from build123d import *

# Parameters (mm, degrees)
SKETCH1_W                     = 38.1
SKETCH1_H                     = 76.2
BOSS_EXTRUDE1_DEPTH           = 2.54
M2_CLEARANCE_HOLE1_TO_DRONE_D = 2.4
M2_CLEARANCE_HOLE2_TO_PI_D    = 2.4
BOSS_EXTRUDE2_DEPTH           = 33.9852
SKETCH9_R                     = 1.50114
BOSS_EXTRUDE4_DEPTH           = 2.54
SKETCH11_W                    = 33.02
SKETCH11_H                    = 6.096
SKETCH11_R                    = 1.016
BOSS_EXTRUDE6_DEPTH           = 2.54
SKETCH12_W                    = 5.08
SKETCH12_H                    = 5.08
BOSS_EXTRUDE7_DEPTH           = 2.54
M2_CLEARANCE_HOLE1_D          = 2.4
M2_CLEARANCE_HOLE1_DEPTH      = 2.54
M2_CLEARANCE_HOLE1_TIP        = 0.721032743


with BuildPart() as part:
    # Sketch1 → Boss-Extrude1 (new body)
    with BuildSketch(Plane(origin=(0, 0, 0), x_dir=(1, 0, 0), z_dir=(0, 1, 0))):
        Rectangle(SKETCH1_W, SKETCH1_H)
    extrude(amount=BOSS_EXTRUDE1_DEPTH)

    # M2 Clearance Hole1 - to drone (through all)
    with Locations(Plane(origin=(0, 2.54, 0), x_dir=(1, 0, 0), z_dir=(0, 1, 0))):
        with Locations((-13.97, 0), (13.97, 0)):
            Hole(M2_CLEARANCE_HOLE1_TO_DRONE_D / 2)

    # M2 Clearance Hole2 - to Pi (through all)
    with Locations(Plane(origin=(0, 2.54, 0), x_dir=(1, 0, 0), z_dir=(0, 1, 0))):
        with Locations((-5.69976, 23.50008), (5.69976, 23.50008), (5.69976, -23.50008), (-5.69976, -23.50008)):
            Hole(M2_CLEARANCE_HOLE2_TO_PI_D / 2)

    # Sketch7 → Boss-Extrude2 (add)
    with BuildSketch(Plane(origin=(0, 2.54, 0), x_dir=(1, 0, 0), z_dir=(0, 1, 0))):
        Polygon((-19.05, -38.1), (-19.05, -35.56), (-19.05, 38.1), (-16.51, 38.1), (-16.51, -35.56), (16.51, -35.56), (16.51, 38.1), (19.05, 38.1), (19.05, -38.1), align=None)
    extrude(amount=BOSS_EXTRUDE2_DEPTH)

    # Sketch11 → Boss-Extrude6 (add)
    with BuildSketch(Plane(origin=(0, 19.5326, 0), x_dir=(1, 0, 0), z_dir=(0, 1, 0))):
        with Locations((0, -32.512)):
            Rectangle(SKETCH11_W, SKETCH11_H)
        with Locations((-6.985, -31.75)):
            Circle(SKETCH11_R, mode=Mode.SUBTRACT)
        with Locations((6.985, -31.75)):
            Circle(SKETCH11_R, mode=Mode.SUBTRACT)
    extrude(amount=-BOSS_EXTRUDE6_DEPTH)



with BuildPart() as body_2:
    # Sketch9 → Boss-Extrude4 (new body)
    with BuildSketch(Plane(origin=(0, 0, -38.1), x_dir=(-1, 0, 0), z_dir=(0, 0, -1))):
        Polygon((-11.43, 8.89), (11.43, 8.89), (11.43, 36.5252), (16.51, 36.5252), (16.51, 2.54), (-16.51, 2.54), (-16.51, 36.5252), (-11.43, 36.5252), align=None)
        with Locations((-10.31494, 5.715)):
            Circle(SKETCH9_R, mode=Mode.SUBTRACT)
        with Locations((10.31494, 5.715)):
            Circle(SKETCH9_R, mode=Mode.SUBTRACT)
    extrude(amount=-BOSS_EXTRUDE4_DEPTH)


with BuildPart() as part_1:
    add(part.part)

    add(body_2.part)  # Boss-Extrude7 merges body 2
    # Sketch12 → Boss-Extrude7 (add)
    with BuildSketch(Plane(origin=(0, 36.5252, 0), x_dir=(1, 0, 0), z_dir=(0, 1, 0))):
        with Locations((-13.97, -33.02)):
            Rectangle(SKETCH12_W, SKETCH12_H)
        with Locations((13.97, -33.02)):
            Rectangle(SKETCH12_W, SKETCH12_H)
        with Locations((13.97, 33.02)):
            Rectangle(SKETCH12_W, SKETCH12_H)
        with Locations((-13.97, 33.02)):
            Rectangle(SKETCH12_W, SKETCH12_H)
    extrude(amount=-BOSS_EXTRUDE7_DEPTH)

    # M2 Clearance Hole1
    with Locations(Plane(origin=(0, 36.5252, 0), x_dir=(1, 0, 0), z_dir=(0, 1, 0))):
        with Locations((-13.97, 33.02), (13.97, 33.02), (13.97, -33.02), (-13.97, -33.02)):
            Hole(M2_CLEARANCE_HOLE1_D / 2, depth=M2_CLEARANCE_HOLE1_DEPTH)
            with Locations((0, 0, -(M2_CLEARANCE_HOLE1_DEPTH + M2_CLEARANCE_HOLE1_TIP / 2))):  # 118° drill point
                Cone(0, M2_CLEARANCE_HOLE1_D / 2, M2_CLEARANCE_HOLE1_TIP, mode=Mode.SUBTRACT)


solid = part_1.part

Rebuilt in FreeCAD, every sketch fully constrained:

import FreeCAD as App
import Part
import Sketcher
Q = App.Units.Quantity

doc = App.newDocument("Part")
body = doc.addObject("PartDesign::Body", "Body")

# Sketch on XZ plane
sketch1 = body.newObject("Sketcher::SketchObject", "Sketch")
sketch1.AttachmentSupport = (doc.getObject("XZ_Plane"), [""])
sketch1.MapMode = "FlatFace"
sketch1.addGeometry([
    Part.LineSegment(App.Vector(-19.05, -38.1, 0), App.Vector(-19.05, 38.1, 0)),
    Part.LineSegment(App.Vector(-19.05, 38.1, 0), App.Vector(19.05, 38.1, 0)),
    Part.LineSegment(App.Vector(19.05, 38.1, 0), App.Vector(19.05, -38.1, 0)),
    Part.LineSegment(App.Vector(19.05, -38.1, 0), App.Vector(-19.05, -38.1, 0)),
], False)
sketch1.addConstraint([
    Sketcher.Constraint("Coincident", 0, 2, 1, 1),
    Sketcher.Constraint("Coincident", 1, 2, 2, 1),
    Sketcher.Constraint("Coincident", 2, 2, 3, 1),
    Sketcher.Constraint("Coincident", 3, 2, 0, 1),
    Sketcher.Constraint("Vertical", 0),
    Sketcher.Constraint("Horizontal", 1),
    Sketcher.Constraint("Vertical", 2),
    Sketcher.Constraint("Horizontal", 3),
    Sketcher.Constraint("Symmetric", 0, 2, 2, 2, -1, 1),
    Sketcher.Constraint("DistanceY", 0, 1, 0, 2, Q("3 in")),
    Sketcher.Constraint("DistanceX", 1, 1, 1, 2, Q("1.5 in")),
])
pad1 = body.newObject("PartDesign::Pad", "Pad")
pad1.Profile = sketch1
pad1.Length = Q("0.1 in")
pad1.Reversed = True

# Sketch on XZ plane
sketch2 = body.newObject("Sketcher::SketchObject", "Sketch001")
sketch2.AttachmentSupport = (doc.getObject("XZ_Plane"), [""])
sketch2.MapMode = "FlatFace"
sketch2.AttachmentOffset = App.Placement(App.Vector(0, 0, -0.1 * 25.4), App.Rotation())
sketch2.addGeometry([
    Part.Circle(App.Vector(-13.97, 0, 0), App.Vector(0, 0, 1), 1.2),
    Part.Circle(App.Vector(13.97, 0, 0), App.Vector(0, 0, 1), 1.2),
], False)
sketch2.addConstraint([
    Sketcher.Constraint("Equal", 0, 1),
    Sketcher.Constraint("Symmetric", 0, 3, 1, 3, -1, 1),
    Sketcher.Constraint("PointOnObject", 0, 3, -1),
    Sketcher.Constraint("DistanceX", 0, 3, 1, 3, Q("1.1 in")),
    Sketcher.Constraint("Diameter", 0, Q("2.4 mm")),
])
doc.recompute()
hole = body.newObject("PartDesign::Hole", "Hole")
hole.Profile = sketch2
hole.ThreadType = "None"
hole.Diameter = 2.4
hole.DepthType = "ThroughAll"
hole.Reversed = True

# Sketch on XZ plane
sketch3 = body.newObject("Sketcher::SketchObject", "Sketch002")
sketch3.AttachmentSupport = (doc.getObject("XZ_Plane"), [""])
sketch3.MapMode = "FlatFace"
sketch3.AttachmentOffset = App.Placement(App.Vector(0, 0, -0.1 * 25.4), App.Rotation())
sketch3.addGeometry([
    Part.Circle(App.Vector(-5.69976, -23.50008, 0), App.Vector(0, 0, 1), 1.2),
    Part.Circle(App.Vector(5.69976, -23.50008, 0), App.Vector(0, 0, 1), 1.2),
    Part.Circle(App.Vector(5.69976, 23.50008, 0), App.Vector(0, 0, 1), 1.2),
    Part.Circle(App.Vector(-5.69976, 23.50008, 0), App.Vector(0, 0, 1), 1.2),
], False)
sketch3.addConstraint([
    Sketcher.Constraint("Equal", 0, 1),
    Sketcher.Constraint("Equal", 1, 2),
    Sketcher.Constraint("Equal", 2, 3),
    Sketcher.Constraint("Symmetric", 0, 3, 2, 3, -1, 1),
    Sketcher.Constraint("Symmetric", 1, 3, 3, 3, -1, 1),
    Sketcher.Constraint("Symmetric", 0, 3, 1, 3, -2),
    Sketcher.Constraint("Diameter", 0, Q("2.4 mm")),
    Sketcher.Constraint("DistanceX", 0, 3, -1, 1, Q("0.2244 in")),
    Sketcher.Constraint("DistanceY", 0, 3, -1, 1, Q("0.9252 in")),
])
doc.recompute()
hole2 = body.newObject("PartDesign::Hole", "Hole001")
hole2.Profile = sketch3
hole2.ThreadType = "None"
hole2.Diameter = 2.4
hole2.DepthType = "ThroughAll"
hole2.Reversed = True

# Sketch on XZ plane
sketch4 = body.newObject("Sketcher::SketchObject", "Sketch003")
sketch4.AttachmentSupport = (doc.getObject("XZ_Plane"), [""])
sketch4.MapMode = "FlatFace"
sketch4.AttachmentOffset = App.Placement(App.Vector(0, 0, -0.1 * 25.4), App.Rotation())
sketch4.addGeometry([
    Part.LineSegment(App.Vector(-19.05, -38.1, 0), App.Vector(-19.05, 38.1, 0)),  # 0
    Part.LineSegment(App.Vector(-19.05, 38.1, 0), App.Vector(19.05, 38.1, 0)),  # 1
    Part.LineSegment(App.Vector(19.05, 38.1, 0), App.Vector(19.05, -38.1, 0)),  # 2
    Part.LineSegment(App.Vector(19.05, -38.1, 0), App.Vector(16.51, -38.1, 0)),  # 3
    Part.LineSegment(App.Vector(16.51, -38.1, 0), App.Vector(16.51, 35.56, 0)),  # 4
    Part.LineSegment(App.Vector(16.51, 35.56, 0), App.Vector(-16.51, 35.56, 0)),  # 5
    Part.LineSegment(App.Vector(-16.51, 35.56, 0), App.Vector(-16.51, -38.1, 0)),  # 6
    Part.LineSegment(App.Vector(-16.51, -38.1, 0), App.Vector(-19.05, -38.1, 0)),  # 7
], False)
sketch4.addConstraint([
    Sketcher.Constraint("Coincident", 0, 2, 1, 1),
    Sketcher.Constraint("Coincident", 1, 2, 2, 1),
    Sketcher.Constraint("Coincident", 2, 2, 3, 1),
    Sketcher.Constraint("Coincident", 3, 2, 4, 1),
    Sketcher.Constraint("Coincident", 4, 2, 5, 1),
    Sketcher.Constraint("Coincident", 5, 2, 6, 1),
    Sketcher.Constraint("Coincident", 6, 2, 7, 1),
    Sketcher.Constraint("Coincident", 7, 2, 0, 1),
    Sketcher.Constraint("Vertical", 0),
    Sketcher.Constraint("Horizontal", 1),
    Sketcher.Constraint("Vertical", 2),
    Sketcher.Constraint("Horizontal", 3),
    Sketcher.Constraint("Vertical", 4),
    Sketcher.Constraint("Horizontal", 5),
    Sketcher.Constraint("Vertical", 6),
    Sketcher.Constraint("Horizontal", 7),
    Sketcher.Constraint("Symmetric", 0, 2, 2, 2, -1, 1),
    Sketcher.Constraint("Symmetric", 3, 2, 6, 2, -2),
    Sketcher.Constraint("DistanceY", 0, 1, 0, 2, Q("3 in")),
    Sketcher.Constraint("DistanceX", 1, 1, 1, 2, Q("1.5 in")),
    Sketcher.Constraint("DistanceX", 3, 2, 3, 1, Q("0.1 in")),
    Sketcher.Constraint("DistanceY", 4, 1, 4, 2, Q("2.9 in")),
])
pad2 = body.newObject("PartDesign::Pad", "Pad001")
pad2.Profile = sketch4
pad2.Length = Q("1.338 in")
pad2.Reversed = True

# Sketch on XZ plane
sketch5 = body.newObject("Sketcher::SketchObject", "Sketch004")
sketch5.AttachmentSupport = (doc.getObject("XZ_Plane"), [""])
sketch5.MapMode = "FlatFace"
sketch5.AttachmentOffset = App.Placement(App.Vector(0, 0, -0.769 * 25.4), App.Rotation())
sketch5.addGeometry([
    Part.LineSegment(App.Vector(-16.51, 29.464, 0), App.Vector(-16.51, 35.56, 0)),  # 0
    Part.LineSegment(App.Vector(-16.51, 35.56, 0), App.Vector(16.51, 35.56, 0)),  # 1
    Part.LineSegment(App.Vector(16.51, 35.56, 0), App.Vector(16.51, 29.464, 0)),  # 2
    Part.LineSegment(App.Vector(16.51, 29.464, 0), App.Vector(-16.51, 29.464, 0)),  # 3
    Part.Circle(App.Vector(-6.985, 31.75, 0), App.Vector(0, 0, 1), 1.016),  # 4
    Part.Circle(App.Vector(6.985, 31.75, 0), App.Vector(0, 0, 1), 1.016),  # 5
], False)
sketch5.addConstraint([
    Sketcher.Constraint("Coincident", 0, 2, 1, 1),
    Sketcher.Constraint("Coincident", 1, 2, 2, 1),
    Sketcher.Constraint("Coincident", 2, 2, 3, 1),
    Sketcher.Constraint("Coincident", 3, 2, 0, 1),
    Sketcher.Constraint("Vertical", 0),
    Sketcher.Constraint("Horizontal", 1),
    Sketcher.Constraint("Vertical", 2),
    Sketcher.Constraint("Horizontal", 3),
    Sketcher.Constraint("Equal", 4, 5),
    Sketcher.Constraint("Symmetric", 4, 3, 5, 3, -2),
    Sketcher.Constraint("Diameter", 4, Q("0.08 in")),
    Sketcher.Constraint("DistanceX", 1, 1, 1, 2, Q("1.3 in")),
    Sketcher.Constraint("DistanceY", 0, 1, 0, 2, Q("0.24 in")),
    Sketcher.Constraint("DistanceY", -1, 1, 0, 2, Q("1.4 in")),
    Sketcher.Constraint("DistanceY", -1, 1, 4, 3, Q("1.25 in")),
    Sketcher.Constraint("DistanceX", 0, 2, -1, 1, Q("0.65 in")),
    Sketcher.Constraint("DistanceX", 4, 3, 5, 3, Q("0.55 in")),
])
pad3 = body.newObject("PartDesign::Pad", "Pad002")
pad3.Profile = sketch5
pad3.Length = Q("0.1 in")
body2 = doc.addObject("PartDesign::Body", "Body001")

# Sketch on XY plane
sketch6 = body2.newObject("Sketcher::SketchObject", "Sketch005")
sketch6.AttachmentSupport = (doc.getObject("XY_Plane001"), [""])
sketch6.MapMode = "FlatFace"
sketch6.AttachmentOffset = App.Placement(App.Vector(0, 0, -1.5 * 25.4), App.Rotation())
sketch6.addGeometry([
    Part.LineSegment(App.Vector(-11.43, 8.89, 0), App.Vector(11.43, 8.89, 0)),  # 0
    Part.LineSegment(App.Vector(11.43, 8.89, 0), App.Vector(11.43, 36.5252, 0)),  # 1
    Part.LineSegment(App.Vector(11.43, 36.5252, 0), App.Vector(16.51, 36.5252, 0)),  # 2
    Part.LineSegment(App.Vector(16.51, 36.5252, 0), App.Vector(16.51, 2.54, 0)),  # 3
    Part.LineSegment(App.Vector(16.51, 2.54, 0), App.Vector(-16.51, 2.54, 0)),  # 4
    Part.LineSegment(App.Vector(-16.51, 2.54, 0), App.Vector(-16.51, 36.5252, 0)),  # 5
    Part.LineSegment(App.Vector(-16.51, 36.5252, 0), App.Vector(-11.43, 36.5252, 0)),  # 6
    Part.LineSegment(App.Vector(-11.43, 36.5252, 0), App.Vector(-11.43, 8.89, 0)),  # 7
    Part.Circle(App.Vector(-10.31494, 5.715, 0), App.Vector(0, 0, 1), 1.50114),  # 8
    Part.Circle(App.Vector(10.31494, 5.715, 0), App.Vector(0, 0, 1), 1.50114),  # 9
], False)
sketch6.addConstraint([
    Sketcher.Constraint("Coincident", 0, 2, 1, 1),
    Sketcher.Constraint("Coincident", 1, 2, 2, 1),
    Sketcher.Constraint("Coincident", 2, 2, 3, 1),
    Sketcher.Constraint("Coincident", 3, 2, 4, 1),
    Sketcher.Constraint("Coincident", 4, 2, 5, 1),
    Sketcher.Constraint("Coincident", 5, 2, 6, 1),
    Sketcher.Constraint("Coincident", 6, 2, 7, 1),
    Sketcher.Constraint("Coincident", 7, 2, 0, 1),
    Sketcher.Constraint("Horizontal", 0),
    Sketcher.Constraint("Vertical", 1),
    Sketcher.Constraint("Horizontal", 2),
    Sketcher.Constraint("Vertical", 3),
    Sketcher.Constraint("Horizontal", 4),
    Sketcher.Constraint("Vertical", 5),
    Sketcher.Constraint("Horizontal", 6),
    Sketcher.Constraint("Vertical", 7),
    Sketcher.Constraint("Equal", 8, 9),
    Sketcher.Constraint("Symmetric", 8, 3, 9, 3, -2),
    Sketcher.Constraint("Symmetric", 2, 2, 5, 2, -2),
    Sketcher.Constraint("Equal", 2, 6),
    Sketcher.Constraint("DistanceX", 0, 1, 0, 2, Q("0.9 in")),
    Sketcher.Constraint("DistanceX", 2, 1, 2, 2, Q("0.2 in")),
    Sketcher.Constraint("Diameter", 8, Q("0.1182 in")),
    Sketcher.Constraint("DistanceY", -1, 1, 3, 2, Q("0.1 in")),
    Sketcher.Constraint("DistanceY", 1, 1, 1, 2, Q("1.088 in")),
    Sketcher.Constraint("DistanceY", 3, 2, 3, 1, Q("1.338 in")),
    Sketcher.Constraint("DistanceY", -1, 1, 8, 3, Q("0.225 in")),
    Sketcher.Constraint("DistanceX", 8, 3, -1, 1, Q("0.4061 in")),
])
pad4 = body2.newObject("PartDesign::Pad", "Pad003")
pad4.Profile = sketch6
pad4.Length = Q("0.1 in")
doc.recompute()

boolean = body.newObject("PartDesign::Boolean", "Boolean")
boolean.Type = "Fuse"
boolean.addObjects([body2])

# Sketch on XZ plane
sketch7 = body.newObject("Sketcher::SketchObject", "Sketch006")
sketch7.AttachmentSupport = (doc.getObject("XZ_Plane"), [""])
sketch7.MapMode = "FlatFace"
sketch7.AttachmentOffset = App.Placement(App.Vector(0, 0, -1.438 * 25.4), App.Rotation())
sketch7.addGeometry([
    Part.LineSegment(App.Vector(-16.51, 30.48, 0), App.Vector(-16.51, 35.56, 0)),  # 0
    Part.LineSegment(App.Vector(-16.51, 35.56, 0), App.Vector(-11.43, 35.56, 0)),  # 1
    Part.LineSegment(App.Vector(-11.43, 35.56, 0), App.Vector(-11.43, 30.48, 0)),  # 2
    Part.LineSegment(App.Vector(-11.43, 30.48, 0), App.Vector(-16.51, 30.48, 0)),  # 3
    Part.LineSegment(App.Vector(11.43, 30.48, 0), App.Vector(11.43, 35.56, 0)),  # 4
    Part.LineSegment(App.Vector(11.43, 35.56, 0), App.Vector(16.51, 35.56, 0)),  # 5
    Part.LineSegment(App.Vector(16.51, 35.56, 0), App.Vector(16.51, 30.48, 0)),  # 6
    Part.LineSegment(App.Vector(16.51, 30.48, 0), App.Vector(11.43, 30.48, 0)),  # 7
    Part.LineSegment(App.Vector(11.43, -35.56, 0), App.Vector(11.43, -30.48, 0)),  # 8
    Part.LineSegment(App.Vector(11.43, -30.48, 0), App.Vector(16.51, -30.48, 0)),  # 9
    Part.LineSegment(App.Vector(16.51, -30.48, 0), App.Vector(16.51, -35.56, 0)),  # 10
    Part.LineSegment(App.Vector(16.51, -35.56, 0), App.Vector(11.43, -35.56, 0)),  # 11
    Part.LineSegment(App.Vector(-16.51, -35.56, 0), App.Vector(-16.51, -30.48, 0)),  # 12
    Part.LineSegment(App.Vector(-16.51, -30.48, 0), App.Vector(-11.43, -30.48, 0)),  # 13
    Part.LineSegment(App.Vector(-11.43, -30.48, 0), App.Vector(-11.43, -35.56, 0)),  # 14
    Part.LineSegment(App.Vector(-11.43, -35.56, 0), App.Vector(-16.51, -35.56, 0)),  # 15
], False)
sketch7.addConstraint([
    Sketcher.Constraint("Coincident", 0, 2, 1, 1),
    Sketcher.Constraint("Coincident", 1, 2, 2, 1),
    Sketcher.Constraint("Coincident", 2, 2, 3, 1),
    Sketcher.Constraint("Coincident", 3, 2, 0, 1),
    Sketcher.Constraint("Coincident", 4, 2, 5, 1),
    Sketcher.Constraint("Coincident", 5, 2, 6, 1),
    Sketcher.Constraint("Coincident", 6, 2, 7, 1),
    Sketcher.Constraint("Coincident", 7, 2, 4, 1),
    Sketcher.Constraint("Coincident", 8, 2, 9, 1),
    Sketcher.Constraint("Coincident", 9, 2, 10, 1),
    Sketcher.Constraint("Coincident", 10, 2, 11, 1),
    Sketcher.Constraint("Coincident", 11, 2, 8, 1),
    Sketcher.Constraint("Coincident", 12, 2, 13, 1),
    Sketcher.Constraint("Coincident", 13, 2, 14, 1),
    Sketcher.Constraint("Coincident", 14, 2, 15, 1),
    Sketcher.Constraint("Coincident", 15, 2, 12, 1),
    Sketcher.Constraint("Vertical", 0),
    Sketcher.Constraint("Horizontal", 1),
    Sketcher.Constraint("Vertical", 2),
    Sketcher.Constraint("Horizontal", 3),
    Sketcher.Constraint("Vertical", 4),
    Sketcher.Constraint("Horizontal", 5),
    Sketcher.Constraint("Vertical", 6),
    Sketcher.Constraint("Horizontal", 7),
    Sketcher.Constraint("Vertical", 8),
    Sketcher.Constraint("Horizontal", 9),
    Sketcher.Constraint("Vertical", 10),
    Sketcher.Constraint("Horizontal", 11),
    Sketcher.Constraint("Vertical", 12),
    Sketcher.Constraint("Horizontal", 13),
    Sketcher.Constraint("Vertical", 14),
    Sketcher.Constraint("Horizontal", 15),
    Sketcher.Constraint("Symmetric", 2, 2, 8, 2, -1, 1),
    Sketcher.Constraint("Symmetric", 0, 2, 10, 2, -1, 1),
    Sketcher.Constraint("Symmetric", 6, 2, 12, 2, -1, 1),
    Sketcher.Constraint("Symmetric", 4, 2, 14, 2, -1, 1),
    Sketcher.Constraint("Symmetric", 1, 2, 4, 2, -2),
    Sketcher.Constraint("Symmetric", 3, 2, 6, 2, -2),
    Sketcher.Constraint("Equal", 15, 0),
    Sketcher.Constraint("DistanceX", 1, 1, 1, 2, Q("0.2 in")),
    Sketcher.Constraint("DistanceY", -1, 1, 0, 2, Q("1.4 in")),
    Sketcher.Constraint("DistanceX", 1, 2, 4, 2, Q("0.9 in")),
])
pad5 = body.newObject("PartDesign::Pad", "Pad004")
pad5.Profile = sketch7
pad5.Length = Q("0.1 in")

# Sketch on XZ plane
sketch8 = body.newObject("Sketcher::SketchObject", "Sketch007")
sketch8.AttachmentSupport = (doc.getObject("XZ_Plane"), [""])
sketch8.MapMode = "FlatFace"
sketch8.AttachmentOffset = App.Placement(App.Vector(0, 0, -1.438 * 25.4), App.Rotation())
sketch8.addGeometry([
    Part.Circle(App.Vector(-13.97, -33.02, 0), App.Vector(0, 0, 1), 1.2),
    Part.Circle(App.Vector(13.97, -33.02, 0), App.Vector(0, 0, 1), 1.2),
    Part.Circle(App.Vector(13.97, 33.02, 0), App.Vector(0, 0, 1), 1.2),
    Part.Circle(App.Vector(-13.97, 33.02, 0), App.Vector(0, 0, 1), 1.2),
], False)
sketch8.addConstraint([
    Sketcher.Constraint("Equal", 0, 1),
    Sketcher.Constraint("Equal", 1, 2),
    Sketcher.Constraint("Equal", 2, 3),
    Sketcher.Constraint("Symmetric", 0, 3, 2, 3, -1, 1),
    Sketcher.Constraint("Symmetric", 1, 3, 3, 3, -1, 1),
    Sketcher.Constraint("Symmetric", 0, 3, 1, 3, -2),
    Sketcher.Constraint("DistanceY", 0, 3, -1, 1, Q("1.3 in")),
    Sketcher.Constraint("DistanceX", 0, 3, 1, 3, Q("1.1 in")),
    Sketcher.Constraint("Diameter", 0, Q("2.4 mm")),
])
doc.recompute()
hole3 = body.newObject("PartDesign::Hole", "Hole002")
hole3.Profile = sketch8
hole3.ThreadType = "None"
hole3.Diameter = 2.4
hole3.DepthType = "Dimension"
hole3.Depth = Q("0.1 in")
hole3.DrillPoint = "Angled"
hole3.DrillPointAngle = 118
hole3.Reversed = True

doc.recompute()
